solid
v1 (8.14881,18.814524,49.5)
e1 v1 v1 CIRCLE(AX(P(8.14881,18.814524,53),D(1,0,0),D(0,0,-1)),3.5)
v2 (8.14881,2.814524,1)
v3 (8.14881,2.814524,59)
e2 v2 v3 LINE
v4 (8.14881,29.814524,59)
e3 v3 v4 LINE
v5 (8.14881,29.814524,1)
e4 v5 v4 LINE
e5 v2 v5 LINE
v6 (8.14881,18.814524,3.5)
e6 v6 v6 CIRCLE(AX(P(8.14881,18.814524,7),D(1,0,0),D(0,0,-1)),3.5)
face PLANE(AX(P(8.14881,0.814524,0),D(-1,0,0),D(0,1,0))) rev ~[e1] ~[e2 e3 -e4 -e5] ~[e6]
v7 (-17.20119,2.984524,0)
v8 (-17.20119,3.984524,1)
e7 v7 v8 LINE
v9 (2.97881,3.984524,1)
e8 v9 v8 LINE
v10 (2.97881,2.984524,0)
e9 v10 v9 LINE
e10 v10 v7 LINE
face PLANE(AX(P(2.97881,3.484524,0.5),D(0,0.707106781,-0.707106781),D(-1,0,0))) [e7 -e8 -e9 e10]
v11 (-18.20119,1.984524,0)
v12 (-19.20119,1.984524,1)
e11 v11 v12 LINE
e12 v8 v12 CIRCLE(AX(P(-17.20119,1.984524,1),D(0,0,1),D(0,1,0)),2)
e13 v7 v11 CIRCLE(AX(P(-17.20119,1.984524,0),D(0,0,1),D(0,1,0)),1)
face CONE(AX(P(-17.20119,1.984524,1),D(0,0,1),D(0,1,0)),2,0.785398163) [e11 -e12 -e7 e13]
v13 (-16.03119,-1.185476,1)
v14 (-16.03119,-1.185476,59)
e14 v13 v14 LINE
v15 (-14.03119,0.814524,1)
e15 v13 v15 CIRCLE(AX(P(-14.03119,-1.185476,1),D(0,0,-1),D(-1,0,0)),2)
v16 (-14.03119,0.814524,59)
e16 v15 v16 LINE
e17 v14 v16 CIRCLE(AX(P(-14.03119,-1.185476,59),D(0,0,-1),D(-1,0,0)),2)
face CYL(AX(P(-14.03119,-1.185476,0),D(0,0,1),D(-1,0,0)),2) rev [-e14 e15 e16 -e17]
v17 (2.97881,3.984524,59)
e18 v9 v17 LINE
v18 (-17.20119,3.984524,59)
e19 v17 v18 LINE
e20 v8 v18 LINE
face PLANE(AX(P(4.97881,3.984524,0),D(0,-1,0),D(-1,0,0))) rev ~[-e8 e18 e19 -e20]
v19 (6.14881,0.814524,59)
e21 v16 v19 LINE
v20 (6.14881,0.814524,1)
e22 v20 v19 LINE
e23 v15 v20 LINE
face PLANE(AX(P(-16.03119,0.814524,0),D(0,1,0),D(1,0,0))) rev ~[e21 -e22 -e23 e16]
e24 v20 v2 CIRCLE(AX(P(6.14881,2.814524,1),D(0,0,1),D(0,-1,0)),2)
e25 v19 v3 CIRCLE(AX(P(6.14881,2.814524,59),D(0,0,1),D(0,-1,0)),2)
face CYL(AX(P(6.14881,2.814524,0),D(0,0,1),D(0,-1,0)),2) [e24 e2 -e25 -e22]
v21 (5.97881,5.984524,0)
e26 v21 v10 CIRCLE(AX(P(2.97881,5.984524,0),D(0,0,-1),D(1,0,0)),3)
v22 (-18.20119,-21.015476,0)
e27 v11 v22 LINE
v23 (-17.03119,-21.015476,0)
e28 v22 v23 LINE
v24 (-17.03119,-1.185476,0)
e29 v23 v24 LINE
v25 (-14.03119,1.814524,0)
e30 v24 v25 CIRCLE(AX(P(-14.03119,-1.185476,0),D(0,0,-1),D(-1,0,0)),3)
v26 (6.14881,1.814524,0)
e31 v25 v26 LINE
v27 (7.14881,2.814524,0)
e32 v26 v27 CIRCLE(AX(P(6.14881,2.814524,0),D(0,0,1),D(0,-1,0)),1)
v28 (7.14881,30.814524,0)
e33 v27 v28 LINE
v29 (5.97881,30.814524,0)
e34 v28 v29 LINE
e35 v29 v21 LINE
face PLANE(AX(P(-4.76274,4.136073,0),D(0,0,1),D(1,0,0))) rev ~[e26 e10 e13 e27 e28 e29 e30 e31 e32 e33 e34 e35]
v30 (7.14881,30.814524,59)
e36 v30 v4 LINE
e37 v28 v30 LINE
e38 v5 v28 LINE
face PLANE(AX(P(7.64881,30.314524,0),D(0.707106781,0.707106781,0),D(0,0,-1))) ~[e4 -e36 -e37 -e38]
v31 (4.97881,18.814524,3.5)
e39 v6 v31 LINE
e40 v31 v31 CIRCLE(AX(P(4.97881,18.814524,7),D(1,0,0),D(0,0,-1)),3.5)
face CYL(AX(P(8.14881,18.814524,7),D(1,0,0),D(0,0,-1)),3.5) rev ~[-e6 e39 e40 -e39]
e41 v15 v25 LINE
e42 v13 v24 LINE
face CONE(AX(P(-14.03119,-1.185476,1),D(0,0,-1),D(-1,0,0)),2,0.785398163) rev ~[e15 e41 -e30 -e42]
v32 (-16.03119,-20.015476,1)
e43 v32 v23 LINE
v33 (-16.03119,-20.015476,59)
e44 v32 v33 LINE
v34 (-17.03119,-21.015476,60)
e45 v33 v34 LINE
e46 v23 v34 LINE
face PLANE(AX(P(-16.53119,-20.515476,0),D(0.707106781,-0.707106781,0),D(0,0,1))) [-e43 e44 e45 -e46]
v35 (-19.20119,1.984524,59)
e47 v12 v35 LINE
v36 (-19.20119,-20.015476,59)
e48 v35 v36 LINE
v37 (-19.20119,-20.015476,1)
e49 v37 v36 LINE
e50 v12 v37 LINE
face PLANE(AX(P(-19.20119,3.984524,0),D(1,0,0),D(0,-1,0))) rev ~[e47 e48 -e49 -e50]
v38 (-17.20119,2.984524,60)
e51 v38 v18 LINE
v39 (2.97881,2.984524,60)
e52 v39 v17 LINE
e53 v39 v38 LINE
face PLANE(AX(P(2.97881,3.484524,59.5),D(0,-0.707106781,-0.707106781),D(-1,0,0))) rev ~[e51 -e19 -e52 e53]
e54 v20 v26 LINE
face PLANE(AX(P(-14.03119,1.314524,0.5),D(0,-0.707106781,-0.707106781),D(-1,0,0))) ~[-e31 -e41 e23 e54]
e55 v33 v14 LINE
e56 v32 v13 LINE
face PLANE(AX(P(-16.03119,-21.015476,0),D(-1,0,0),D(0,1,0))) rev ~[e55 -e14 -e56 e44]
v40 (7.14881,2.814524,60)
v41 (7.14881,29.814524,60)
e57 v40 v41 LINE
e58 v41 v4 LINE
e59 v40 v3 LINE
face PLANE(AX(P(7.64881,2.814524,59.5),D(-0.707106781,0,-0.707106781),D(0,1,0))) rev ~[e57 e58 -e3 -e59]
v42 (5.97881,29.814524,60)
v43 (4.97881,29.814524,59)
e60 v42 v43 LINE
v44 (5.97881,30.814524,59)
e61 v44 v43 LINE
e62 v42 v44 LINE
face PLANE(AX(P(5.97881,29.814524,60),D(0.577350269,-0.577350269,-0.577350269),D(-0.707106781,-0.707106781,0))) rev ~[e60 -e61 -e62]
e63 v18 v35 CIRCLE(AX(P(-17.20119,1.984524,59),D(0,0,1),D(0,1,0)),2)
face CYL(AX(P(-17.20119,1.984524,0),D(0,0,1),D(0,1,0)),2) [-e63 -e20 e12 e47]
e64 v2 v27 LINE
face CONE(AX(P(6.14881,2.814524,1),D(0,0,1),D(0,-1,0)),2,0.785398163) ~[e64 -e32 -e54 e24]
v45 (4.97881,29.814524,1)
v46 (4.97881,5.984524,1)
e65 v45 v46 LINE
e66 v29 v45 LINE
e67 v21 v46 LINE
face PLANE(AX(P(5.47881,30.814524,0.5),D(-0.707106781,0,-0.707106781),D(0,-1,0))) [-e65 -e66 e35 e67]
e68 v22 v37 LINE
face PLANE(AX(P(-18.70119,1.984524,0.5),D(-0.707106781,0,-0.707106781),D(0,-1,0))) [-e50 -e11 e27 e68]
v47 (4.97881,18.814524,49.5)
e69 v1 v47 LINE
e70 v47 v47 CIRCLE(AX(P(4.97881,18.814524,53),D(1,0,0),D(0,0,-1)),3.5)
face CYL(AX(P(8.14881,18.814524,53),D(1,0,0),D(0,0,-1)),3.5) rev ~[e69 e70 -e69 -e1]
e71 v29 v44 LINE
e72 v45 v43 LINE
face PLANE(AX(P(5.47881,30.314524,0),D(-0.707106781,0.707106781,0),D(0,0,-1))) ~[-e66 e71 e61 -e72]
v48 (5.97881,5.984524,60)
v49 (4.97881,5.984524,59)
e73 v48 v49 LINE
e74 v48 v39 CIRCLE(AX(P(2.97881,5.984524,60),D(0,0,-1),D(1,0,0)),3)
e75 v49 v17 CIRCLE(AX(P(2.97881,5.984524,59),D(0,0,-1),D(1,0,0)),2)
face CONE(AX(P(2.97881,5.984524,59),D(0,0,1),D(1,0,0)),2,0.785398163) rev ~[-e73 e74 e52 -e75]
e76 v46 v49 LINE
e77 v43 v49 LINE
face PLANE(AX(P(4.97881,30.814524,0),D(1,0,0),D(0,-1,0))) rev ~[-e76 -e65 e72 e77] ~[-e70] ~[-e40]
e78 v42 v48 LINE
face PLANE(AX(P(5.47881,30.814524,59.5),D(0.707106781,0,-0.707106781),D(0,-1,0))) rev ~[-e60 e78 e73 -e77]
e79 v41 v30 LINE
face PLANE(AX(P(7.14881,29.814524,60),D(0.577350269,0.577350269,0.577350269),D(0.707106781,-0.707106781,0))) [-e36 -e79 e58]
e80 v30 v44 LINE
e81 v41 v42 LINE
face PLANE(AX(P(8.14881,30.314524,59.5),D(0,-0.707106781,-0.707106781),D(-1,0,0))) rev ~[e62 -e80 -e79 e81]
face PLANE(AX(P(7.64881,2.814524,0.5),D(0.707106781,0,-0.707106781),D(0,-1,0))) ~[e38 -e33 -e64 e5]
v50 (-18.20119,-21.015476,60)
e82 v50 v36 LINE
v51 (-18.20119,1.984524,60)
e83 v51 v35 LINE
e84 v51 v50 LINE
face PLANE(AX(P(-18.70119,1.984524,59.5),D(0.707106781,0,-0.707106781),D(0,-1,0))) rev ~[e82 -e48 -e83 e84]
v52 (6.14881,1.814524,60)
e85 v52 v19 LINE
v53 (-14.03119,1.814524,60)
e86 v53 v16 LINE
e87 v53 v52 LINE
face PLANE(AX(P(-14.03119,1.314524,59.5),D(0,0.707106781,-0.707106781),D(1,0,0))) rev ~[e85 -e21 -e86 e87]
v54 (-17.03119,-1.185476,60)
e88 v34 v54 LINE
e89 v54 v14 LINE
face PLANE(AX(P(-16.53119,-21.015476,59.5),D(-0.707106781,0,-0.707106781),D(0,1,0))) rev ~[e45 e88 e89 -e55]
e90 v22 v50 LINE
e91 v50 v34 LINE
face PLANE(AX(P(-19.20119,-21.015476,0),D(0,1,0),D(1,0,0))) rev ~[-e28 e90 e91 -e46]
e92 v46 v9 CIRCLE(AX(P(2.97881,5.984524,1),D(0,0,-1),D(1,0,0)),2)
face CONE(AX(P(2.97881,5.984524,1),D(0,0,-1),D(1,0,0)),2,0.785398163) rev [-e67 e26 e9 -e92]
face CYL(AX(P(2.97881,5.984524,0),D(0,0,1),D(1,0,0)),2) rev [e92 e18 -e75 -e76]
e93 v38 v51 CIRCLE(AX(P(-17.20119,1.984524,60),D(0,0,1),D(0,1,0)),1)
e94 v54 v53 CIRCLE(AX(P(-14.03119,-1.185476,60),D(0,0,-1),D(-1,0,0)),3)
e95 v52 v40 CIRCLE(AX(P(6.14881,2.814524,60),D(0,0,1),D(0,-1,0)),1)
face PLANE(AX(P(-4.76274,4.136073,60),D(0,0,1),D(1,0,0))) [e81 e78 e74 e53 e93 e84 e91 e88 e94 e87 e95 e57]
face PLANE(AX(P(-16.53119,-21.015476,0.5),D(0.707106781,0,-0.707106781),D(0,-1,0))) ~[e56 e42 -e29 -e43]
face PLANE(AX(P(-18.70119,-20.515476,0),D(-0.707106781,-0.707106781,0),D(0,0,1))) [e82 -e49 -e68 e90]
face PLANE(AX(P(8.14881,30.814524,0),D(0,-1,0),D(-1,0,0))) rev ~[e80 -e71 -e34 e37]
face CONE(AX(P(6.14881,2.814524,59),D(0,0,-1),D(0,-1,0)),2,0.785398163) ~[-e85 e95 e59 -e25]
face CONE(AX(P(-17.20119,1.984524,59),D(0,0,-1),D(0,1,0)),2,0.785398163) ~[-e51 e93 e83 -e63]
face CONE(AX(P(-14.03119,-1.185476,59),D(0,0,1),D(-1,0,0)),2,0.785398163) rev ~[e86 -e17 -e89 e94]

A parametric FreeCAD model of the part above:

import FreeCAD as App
import Part
import Sketcher
Q = App.Units.Quantity


def edges_at(feature, points):
    """Names of the edges that pass closest to the given points."""
    edges = feature.Shape.Edges
    near = lambda p: min(range(len(edges)), key=lambda i: edges[i].distToShape(Part.Vertex(*p))[0])
    return sorted({f"Edge{near(p) + 1}" for p in points})


def add_polygon(sketch, points):
    """Adds a closed chain of lines whose ends are joined by coincident constraints."""
    first, n = sketch.GeometryCount, len(points)
    for a, b in zip(points, points[1:] + points[:1]):
        sketch.addGeometry(Part.LineSegment(App.Vector(*a, 0), App.Vector(*b, 0)), False)
    for i in range(n):
        sketch.addConstraint(Sketcher.Constraint("Coincident", first + i, 2, first + (i + 1) % n, 1))

doc = App.newDocument("Part")
params = doc.addObject("Spreadsheet::Sheet", "Params")
for row, (alias, value) in enumerate([
    ("sketch1_height", "30 mm"),
    ("sketch1_height2", "25 mm"),
    ("sketch1_width", "24.18 mm"),
    ("sketch1_width2", "3.17 mm"),
    ("sketch1_height3", "21.83 mm"),
    ("pad1_length", "60 mm"),
    ("fillet_radius", "2 mm"),
    ("sketch2_diameter", "7 mm"),
    ("pocket1_length", "60 mm"),
    ("chamfer_size", "1 mm"),
], start=1):
    params.set(f"A{row}", alias)
    params.set(f"B{row}", "=" + value)
    params.setAlias(f"B{row}", alias)

body = doc.addObject("PartDesign::Body", "Body")

# Sketch on XY plane
sketch1 = doc.addObject("Sketcher::SketchObject", "Sketch")
body.addObject(sketch1)
sketch1.AttachmentSupport = (doc.XY_Plane, [""])
sketch1.MapMode = "FlatFace"
add_polygon(sketch1, [(-16.03119, -21.015476), (-16.03119, 0.814524), (8.14881, 0.814524), (8.14881, 30.814524), (4.97881, 30.814524), (4.97881, 3.984524), (-19.20119, 3.984524), (-19.20119, -21.015476)])  # lines 0-7
sketch1.addConstraint([
    Sketcher.Constraint("Vertical", 0),
    Sketcher.Constraint("Horizontal", 1),
    Sketcher.Constraint("Vertical", 2),
    Sketcher.Constraint("Horizontal", 3),
    Sketcher.Constraint("Vertical", 4),
    Sketcher.Constraint("Horizontal", 5),
    Sketcher.Constraint("Vertical", 6),
    Sketcher.Constraint("Horizontal", 7),
    Sketcher.Constraint("Equal", 1, 5),
    Sketcher.Constraint("DistanceY", 2, 1, 2, 2, Q("30 mm")),
    Sketcher.Constraint("DistanceY", 6, 2, 6, 1, Q("25 mm")),
    Sketcher.Constraint("DistanceX", 1, 1, 1, 2, Q("24.18 mm")),
    Sketcher.Constraint("DistanceX", 3, 2, 3, 1, Q("3.17 mm")),
    Sketcher.Constraint("DistanceY", 0, 1, 0, 2, Q("21.83 mm")),
    Sketcher.Constraint("DistanceX", 0, 2, -1, 1, Q("16.03119 mm")),
    Sketcher.Constraint("DistanceY", -1, 1, 0, 2, Q("0.814524 mm")),
])
sketch1.setExpression("Constraints[17]", "Params.sketch1_height")
sketch1.setExpression("Constraints[18]", "Params.sketch1_height2")
sketch1.setExpression("Constraints[19]", "Params.sketch1_width")
sketch1.setExpression("Constraints[20]", "Params.sketch1_width2")
sketch1.setExpression("Constraints[21]", "Params.sketch1_height3")
pad1 = doc.addObject("PartDesign::Pad", "Pad")
body.addObject(pad1)
pad1.Profile = sketch1
pad1.setExpression("Length", "Params.pad1_length")
doc.recompute()

fillet = doc.addObject("PartDesign::Fillet", "Fillet")
body.addObject(fillet)
fillet.Base = (pad1, edges_at(pad1, [
    (-19.201, 3.985, 30),
    (4.979, 3.985, 30),
    (8.149, 0.815, 30),
    (-16.031, 0.815, 30),
]))
fillet.setExpression("Radius", "Params.fillet_radius")

# Sketch on YZ plane
sketch2 = doc.addObject("Sketcher::SketchObject", "Sketch001")
body.addObject(sketch2)
sketch2.AttachmentSupport = (doc.YZ_Plane, [""])
sketch2.MapMode = "FlatFace"
sketch2.AttachmentOffset = App.Placement(App.Vector(0, 0, 8.14881), App.Rotation())
sketch2.addGeometry([
    Part.Circle(App.Vector(18.814524, 53, 0), App.Vector(0, 0, 1), 3.5),
    Part.Circle(App.Vector(18.814524, 7, 0), App.Vector(0, 0, 1), 3.5),
], False)
sketch2.addConstraint([
    Sketcher.Constraint("Equal", 0, 1),
    Sketcher.Constraint("Vertical", 0, 3, 1, 3),
    Sketcher.Constraint("Diameter", 0, Q("7 mm")),
    Sketcher.Constraint("DistanceY", -1, 1, 0, 3, Q("53 mm")),
    Sketcher.Constraint("DistanceY", -1, 1, 1, 3, Q("7 mm")),
    Sketcher.Constraint("DistanceX", -1, 1, 0, 3, Q("18.814524 mm")),
])
sketch2.setExpression("Constraints[2]", "Params.sketch2_diameter")
pocket1 = doc.addObject("PartDesign::Pocket", "Pocket")
body.addObject(pocket1)
pocket1.Profile = sketch2
pocket1.setExpression("Length", "Params.pocket1_length")
doc.recompute()

chamfer = doc.addObject("PartDesign::Chamfer", "Chamfer")
body.addObject(chamfer)
chamfer.Base = (pocket1, edges_at(pocket1, [
    (-16.031, -11.1, 0),
    (-19.201, -21.015, 30),
    (4.979, 30.815, 30),
    (8.149, 30.815, 30),
    (-16.031, -21.015, 30),
    (6.564, 30.815, 60),
    (4.979, 18.4, 60),
    (-19.201, -9.515, 0),
    (-19.201, -9.515, 60),
    (-7.111, 3.985, 0),
    (8.149, 16.815, 0),
    (-3.941, 0.815, 0),
    (7.563, 1.4, 0),
    (-18.615, 3.399, 0),
    (-7.111, 3.985, 60),
    (-3.941, 0.815, 60),
    (8.149, 16.815, 60),
    (7.563, 1.4, 60),
    (-18.615, 3.399, 60),
    (4.393, 4.57, 0),
    (4.393, 4.57, 60),
    (-15.445, 0.229, 0),
    (-15.445, 0.229, 60),
    (-16.031, -11.1, 60),
    (4.979, 18.4, 0),
]))
chamfer.setExpression("Size", "Params.chamfer_size")

doc.recompute()
